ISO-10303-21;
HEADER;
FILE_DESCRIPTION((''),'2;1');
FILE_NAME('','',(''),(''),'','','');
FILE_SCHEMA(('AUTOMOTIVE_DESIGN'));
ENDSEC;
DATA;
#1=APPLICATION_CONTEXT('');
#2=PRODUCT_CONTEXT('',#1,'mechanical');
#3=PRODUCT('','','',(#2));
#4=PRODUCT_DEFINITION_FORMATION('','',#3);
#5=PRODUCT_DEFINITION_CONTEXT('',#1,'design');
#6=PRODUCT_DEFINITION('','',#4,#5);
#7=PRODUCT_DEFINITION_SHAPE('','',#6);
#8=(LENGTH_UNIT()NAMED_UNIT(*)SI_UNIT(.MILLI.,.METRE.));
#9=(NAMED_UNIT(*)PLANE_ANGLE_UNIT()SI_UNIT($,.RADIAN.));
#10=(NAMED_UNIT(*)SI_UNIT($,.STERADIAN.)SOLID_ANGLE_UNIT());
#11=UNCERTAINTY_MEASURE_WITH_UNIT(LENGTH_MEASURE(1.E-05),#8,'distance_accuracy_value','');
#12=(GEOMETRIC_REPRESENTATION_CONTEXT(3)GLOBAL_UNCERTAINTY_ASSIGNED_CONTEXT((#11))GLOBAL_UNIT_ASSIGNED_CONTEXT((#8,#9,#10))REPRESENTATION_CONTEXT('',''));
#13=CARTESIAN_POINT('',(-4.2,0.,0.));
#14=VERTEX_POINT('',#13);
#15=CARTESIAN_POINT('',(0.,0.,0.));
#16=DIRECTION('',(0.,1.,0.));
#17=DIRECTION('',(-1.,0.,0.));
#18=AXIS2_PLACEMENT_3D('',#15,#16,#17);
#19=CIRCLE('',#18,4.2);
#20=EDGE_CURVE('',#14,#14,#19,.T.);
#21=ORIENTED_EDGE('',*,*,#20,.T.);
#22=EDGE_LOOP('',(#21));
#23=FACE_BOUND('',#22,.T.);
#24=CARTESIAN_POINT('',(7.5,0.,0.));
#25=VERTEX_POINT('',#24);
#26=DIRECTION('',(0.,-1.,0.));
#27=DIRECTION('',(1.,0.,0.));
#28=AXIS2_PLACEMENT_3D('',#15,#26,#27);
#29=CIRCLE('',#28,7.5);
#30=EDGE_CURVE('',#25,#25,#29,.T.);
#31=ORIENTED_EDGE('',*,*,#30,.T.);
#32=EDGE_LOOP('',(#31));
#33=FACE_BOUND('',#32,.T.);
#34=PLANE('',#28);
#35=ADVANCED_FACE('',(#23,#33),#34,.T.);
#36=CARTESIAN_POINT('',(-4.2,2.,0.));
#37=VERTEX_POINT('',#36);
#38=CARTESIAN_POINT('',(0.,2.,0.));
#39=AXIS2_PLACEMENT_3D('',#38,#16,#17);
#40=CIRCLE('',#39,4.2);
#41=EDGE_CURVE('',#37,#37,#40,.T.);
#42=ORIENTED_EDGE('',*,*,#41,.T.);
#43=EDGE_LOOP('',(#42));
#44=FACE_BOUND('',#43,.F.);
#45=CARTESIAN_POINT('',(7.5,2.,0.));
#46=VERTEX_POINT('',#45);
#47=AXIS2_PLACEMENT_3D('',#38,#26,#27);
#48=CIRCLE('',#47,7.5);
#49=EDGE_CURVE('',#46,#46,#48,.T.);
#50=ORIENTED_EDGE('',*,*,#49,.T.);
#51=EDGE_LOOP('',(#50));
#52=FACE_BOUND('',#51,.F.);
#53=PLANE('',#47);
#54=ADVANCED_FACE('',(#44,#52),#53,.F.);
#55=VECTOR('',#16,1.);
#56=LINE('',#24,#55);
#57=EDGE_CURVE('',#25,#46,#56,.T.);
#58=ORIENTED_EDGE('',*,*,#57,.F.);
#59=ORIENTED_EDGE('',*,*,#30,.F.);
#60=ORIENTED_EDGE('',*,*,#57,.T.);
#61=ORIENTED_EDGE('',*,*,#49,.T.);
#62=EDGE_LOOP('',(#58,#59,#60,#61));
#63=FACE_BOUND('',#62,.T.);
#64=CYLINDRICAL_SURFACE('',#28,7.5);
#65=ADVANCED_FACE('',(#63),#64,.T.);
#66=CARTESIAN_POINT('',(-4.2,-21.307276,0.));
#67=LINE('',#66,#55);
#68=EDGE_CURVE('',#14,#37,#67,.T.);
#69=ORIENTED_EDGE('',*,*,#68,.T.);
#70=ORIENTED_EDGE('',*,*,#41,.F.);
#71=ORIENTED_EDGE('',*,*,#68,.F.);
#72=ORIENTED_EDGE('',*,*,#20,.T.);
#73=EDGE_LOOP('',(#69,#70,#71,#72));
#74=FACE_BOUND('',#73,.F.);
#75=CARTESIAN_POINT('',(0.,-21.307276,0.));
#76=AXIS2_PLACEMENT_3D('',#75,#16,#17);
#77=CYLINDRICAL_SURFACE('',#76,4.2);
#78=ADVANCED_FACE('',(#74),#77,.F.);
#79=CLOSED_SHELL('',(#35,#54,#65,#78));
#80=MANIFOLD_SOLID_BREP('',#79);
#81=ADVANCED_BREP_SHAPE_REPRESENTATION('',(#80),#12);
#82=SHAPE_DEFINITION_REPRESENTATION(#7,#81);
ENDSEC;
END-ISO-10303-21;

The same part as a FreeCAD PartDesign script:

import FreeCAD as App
import Part
import Sketcher

V = App.Vector
Q = App.Units.Quantity

doc = App.newDocument("Part")
body = doc.addObject("PartDesign::Body", "Body")

# Sketch on XZ plane
sketch1 = body.newObject("Sketcher::SketchObject", "Sketch")
sketch1.AttachmentSupport = (doc.getObject("XZ_Plane"), [""])
sketch1.MapMode = "FlatFace"
sketch1.addGeometry(Part.Circle(V(0, 0, 0), V(0, 0, 1), 8), False)
sketch1.addConstraint(Sketcher.Constraint("Coincident", 0, 3, -1, 1))
sketch1.addConstraint(Sketcher.Constraint("Diameter", 0, Q("15 mm")))
pad1 = body.newObject("PartDesign::Pad", "Pad")
pad1.Profile = sketch1
pad1.Length = 2
pad1.Reversed = True

# Sketch on XZ plane
sketch2 = body.newObject("Sketcher::SketchObject", "Sketch001")
sketch2.AttachmentSupport = (doc.getObject("XZ_Plane"), [""])
sketch2.MapMode = "FlatFace"
sketch2.addGeometry(Part.Circle(V(0, 0, 0), V(0, 0, 1), 4.2), False)
sketch2.addConstraint(Sketcher.Constraint("Coincident", 0, 3, -1, 1))
sketch2.addConstraint(Sketcher.Constraint("Diameter", 0, Q("8.4 mm")))
doc.recompute()
hole = body.newObject("PartDesign::Hole", "Hole")
hole.Profile = sketch2
hole.ThreadType = "None"
hole.Diameter = 8.4
hole.DepthType = "ThroughAll"

doc.recompute()
